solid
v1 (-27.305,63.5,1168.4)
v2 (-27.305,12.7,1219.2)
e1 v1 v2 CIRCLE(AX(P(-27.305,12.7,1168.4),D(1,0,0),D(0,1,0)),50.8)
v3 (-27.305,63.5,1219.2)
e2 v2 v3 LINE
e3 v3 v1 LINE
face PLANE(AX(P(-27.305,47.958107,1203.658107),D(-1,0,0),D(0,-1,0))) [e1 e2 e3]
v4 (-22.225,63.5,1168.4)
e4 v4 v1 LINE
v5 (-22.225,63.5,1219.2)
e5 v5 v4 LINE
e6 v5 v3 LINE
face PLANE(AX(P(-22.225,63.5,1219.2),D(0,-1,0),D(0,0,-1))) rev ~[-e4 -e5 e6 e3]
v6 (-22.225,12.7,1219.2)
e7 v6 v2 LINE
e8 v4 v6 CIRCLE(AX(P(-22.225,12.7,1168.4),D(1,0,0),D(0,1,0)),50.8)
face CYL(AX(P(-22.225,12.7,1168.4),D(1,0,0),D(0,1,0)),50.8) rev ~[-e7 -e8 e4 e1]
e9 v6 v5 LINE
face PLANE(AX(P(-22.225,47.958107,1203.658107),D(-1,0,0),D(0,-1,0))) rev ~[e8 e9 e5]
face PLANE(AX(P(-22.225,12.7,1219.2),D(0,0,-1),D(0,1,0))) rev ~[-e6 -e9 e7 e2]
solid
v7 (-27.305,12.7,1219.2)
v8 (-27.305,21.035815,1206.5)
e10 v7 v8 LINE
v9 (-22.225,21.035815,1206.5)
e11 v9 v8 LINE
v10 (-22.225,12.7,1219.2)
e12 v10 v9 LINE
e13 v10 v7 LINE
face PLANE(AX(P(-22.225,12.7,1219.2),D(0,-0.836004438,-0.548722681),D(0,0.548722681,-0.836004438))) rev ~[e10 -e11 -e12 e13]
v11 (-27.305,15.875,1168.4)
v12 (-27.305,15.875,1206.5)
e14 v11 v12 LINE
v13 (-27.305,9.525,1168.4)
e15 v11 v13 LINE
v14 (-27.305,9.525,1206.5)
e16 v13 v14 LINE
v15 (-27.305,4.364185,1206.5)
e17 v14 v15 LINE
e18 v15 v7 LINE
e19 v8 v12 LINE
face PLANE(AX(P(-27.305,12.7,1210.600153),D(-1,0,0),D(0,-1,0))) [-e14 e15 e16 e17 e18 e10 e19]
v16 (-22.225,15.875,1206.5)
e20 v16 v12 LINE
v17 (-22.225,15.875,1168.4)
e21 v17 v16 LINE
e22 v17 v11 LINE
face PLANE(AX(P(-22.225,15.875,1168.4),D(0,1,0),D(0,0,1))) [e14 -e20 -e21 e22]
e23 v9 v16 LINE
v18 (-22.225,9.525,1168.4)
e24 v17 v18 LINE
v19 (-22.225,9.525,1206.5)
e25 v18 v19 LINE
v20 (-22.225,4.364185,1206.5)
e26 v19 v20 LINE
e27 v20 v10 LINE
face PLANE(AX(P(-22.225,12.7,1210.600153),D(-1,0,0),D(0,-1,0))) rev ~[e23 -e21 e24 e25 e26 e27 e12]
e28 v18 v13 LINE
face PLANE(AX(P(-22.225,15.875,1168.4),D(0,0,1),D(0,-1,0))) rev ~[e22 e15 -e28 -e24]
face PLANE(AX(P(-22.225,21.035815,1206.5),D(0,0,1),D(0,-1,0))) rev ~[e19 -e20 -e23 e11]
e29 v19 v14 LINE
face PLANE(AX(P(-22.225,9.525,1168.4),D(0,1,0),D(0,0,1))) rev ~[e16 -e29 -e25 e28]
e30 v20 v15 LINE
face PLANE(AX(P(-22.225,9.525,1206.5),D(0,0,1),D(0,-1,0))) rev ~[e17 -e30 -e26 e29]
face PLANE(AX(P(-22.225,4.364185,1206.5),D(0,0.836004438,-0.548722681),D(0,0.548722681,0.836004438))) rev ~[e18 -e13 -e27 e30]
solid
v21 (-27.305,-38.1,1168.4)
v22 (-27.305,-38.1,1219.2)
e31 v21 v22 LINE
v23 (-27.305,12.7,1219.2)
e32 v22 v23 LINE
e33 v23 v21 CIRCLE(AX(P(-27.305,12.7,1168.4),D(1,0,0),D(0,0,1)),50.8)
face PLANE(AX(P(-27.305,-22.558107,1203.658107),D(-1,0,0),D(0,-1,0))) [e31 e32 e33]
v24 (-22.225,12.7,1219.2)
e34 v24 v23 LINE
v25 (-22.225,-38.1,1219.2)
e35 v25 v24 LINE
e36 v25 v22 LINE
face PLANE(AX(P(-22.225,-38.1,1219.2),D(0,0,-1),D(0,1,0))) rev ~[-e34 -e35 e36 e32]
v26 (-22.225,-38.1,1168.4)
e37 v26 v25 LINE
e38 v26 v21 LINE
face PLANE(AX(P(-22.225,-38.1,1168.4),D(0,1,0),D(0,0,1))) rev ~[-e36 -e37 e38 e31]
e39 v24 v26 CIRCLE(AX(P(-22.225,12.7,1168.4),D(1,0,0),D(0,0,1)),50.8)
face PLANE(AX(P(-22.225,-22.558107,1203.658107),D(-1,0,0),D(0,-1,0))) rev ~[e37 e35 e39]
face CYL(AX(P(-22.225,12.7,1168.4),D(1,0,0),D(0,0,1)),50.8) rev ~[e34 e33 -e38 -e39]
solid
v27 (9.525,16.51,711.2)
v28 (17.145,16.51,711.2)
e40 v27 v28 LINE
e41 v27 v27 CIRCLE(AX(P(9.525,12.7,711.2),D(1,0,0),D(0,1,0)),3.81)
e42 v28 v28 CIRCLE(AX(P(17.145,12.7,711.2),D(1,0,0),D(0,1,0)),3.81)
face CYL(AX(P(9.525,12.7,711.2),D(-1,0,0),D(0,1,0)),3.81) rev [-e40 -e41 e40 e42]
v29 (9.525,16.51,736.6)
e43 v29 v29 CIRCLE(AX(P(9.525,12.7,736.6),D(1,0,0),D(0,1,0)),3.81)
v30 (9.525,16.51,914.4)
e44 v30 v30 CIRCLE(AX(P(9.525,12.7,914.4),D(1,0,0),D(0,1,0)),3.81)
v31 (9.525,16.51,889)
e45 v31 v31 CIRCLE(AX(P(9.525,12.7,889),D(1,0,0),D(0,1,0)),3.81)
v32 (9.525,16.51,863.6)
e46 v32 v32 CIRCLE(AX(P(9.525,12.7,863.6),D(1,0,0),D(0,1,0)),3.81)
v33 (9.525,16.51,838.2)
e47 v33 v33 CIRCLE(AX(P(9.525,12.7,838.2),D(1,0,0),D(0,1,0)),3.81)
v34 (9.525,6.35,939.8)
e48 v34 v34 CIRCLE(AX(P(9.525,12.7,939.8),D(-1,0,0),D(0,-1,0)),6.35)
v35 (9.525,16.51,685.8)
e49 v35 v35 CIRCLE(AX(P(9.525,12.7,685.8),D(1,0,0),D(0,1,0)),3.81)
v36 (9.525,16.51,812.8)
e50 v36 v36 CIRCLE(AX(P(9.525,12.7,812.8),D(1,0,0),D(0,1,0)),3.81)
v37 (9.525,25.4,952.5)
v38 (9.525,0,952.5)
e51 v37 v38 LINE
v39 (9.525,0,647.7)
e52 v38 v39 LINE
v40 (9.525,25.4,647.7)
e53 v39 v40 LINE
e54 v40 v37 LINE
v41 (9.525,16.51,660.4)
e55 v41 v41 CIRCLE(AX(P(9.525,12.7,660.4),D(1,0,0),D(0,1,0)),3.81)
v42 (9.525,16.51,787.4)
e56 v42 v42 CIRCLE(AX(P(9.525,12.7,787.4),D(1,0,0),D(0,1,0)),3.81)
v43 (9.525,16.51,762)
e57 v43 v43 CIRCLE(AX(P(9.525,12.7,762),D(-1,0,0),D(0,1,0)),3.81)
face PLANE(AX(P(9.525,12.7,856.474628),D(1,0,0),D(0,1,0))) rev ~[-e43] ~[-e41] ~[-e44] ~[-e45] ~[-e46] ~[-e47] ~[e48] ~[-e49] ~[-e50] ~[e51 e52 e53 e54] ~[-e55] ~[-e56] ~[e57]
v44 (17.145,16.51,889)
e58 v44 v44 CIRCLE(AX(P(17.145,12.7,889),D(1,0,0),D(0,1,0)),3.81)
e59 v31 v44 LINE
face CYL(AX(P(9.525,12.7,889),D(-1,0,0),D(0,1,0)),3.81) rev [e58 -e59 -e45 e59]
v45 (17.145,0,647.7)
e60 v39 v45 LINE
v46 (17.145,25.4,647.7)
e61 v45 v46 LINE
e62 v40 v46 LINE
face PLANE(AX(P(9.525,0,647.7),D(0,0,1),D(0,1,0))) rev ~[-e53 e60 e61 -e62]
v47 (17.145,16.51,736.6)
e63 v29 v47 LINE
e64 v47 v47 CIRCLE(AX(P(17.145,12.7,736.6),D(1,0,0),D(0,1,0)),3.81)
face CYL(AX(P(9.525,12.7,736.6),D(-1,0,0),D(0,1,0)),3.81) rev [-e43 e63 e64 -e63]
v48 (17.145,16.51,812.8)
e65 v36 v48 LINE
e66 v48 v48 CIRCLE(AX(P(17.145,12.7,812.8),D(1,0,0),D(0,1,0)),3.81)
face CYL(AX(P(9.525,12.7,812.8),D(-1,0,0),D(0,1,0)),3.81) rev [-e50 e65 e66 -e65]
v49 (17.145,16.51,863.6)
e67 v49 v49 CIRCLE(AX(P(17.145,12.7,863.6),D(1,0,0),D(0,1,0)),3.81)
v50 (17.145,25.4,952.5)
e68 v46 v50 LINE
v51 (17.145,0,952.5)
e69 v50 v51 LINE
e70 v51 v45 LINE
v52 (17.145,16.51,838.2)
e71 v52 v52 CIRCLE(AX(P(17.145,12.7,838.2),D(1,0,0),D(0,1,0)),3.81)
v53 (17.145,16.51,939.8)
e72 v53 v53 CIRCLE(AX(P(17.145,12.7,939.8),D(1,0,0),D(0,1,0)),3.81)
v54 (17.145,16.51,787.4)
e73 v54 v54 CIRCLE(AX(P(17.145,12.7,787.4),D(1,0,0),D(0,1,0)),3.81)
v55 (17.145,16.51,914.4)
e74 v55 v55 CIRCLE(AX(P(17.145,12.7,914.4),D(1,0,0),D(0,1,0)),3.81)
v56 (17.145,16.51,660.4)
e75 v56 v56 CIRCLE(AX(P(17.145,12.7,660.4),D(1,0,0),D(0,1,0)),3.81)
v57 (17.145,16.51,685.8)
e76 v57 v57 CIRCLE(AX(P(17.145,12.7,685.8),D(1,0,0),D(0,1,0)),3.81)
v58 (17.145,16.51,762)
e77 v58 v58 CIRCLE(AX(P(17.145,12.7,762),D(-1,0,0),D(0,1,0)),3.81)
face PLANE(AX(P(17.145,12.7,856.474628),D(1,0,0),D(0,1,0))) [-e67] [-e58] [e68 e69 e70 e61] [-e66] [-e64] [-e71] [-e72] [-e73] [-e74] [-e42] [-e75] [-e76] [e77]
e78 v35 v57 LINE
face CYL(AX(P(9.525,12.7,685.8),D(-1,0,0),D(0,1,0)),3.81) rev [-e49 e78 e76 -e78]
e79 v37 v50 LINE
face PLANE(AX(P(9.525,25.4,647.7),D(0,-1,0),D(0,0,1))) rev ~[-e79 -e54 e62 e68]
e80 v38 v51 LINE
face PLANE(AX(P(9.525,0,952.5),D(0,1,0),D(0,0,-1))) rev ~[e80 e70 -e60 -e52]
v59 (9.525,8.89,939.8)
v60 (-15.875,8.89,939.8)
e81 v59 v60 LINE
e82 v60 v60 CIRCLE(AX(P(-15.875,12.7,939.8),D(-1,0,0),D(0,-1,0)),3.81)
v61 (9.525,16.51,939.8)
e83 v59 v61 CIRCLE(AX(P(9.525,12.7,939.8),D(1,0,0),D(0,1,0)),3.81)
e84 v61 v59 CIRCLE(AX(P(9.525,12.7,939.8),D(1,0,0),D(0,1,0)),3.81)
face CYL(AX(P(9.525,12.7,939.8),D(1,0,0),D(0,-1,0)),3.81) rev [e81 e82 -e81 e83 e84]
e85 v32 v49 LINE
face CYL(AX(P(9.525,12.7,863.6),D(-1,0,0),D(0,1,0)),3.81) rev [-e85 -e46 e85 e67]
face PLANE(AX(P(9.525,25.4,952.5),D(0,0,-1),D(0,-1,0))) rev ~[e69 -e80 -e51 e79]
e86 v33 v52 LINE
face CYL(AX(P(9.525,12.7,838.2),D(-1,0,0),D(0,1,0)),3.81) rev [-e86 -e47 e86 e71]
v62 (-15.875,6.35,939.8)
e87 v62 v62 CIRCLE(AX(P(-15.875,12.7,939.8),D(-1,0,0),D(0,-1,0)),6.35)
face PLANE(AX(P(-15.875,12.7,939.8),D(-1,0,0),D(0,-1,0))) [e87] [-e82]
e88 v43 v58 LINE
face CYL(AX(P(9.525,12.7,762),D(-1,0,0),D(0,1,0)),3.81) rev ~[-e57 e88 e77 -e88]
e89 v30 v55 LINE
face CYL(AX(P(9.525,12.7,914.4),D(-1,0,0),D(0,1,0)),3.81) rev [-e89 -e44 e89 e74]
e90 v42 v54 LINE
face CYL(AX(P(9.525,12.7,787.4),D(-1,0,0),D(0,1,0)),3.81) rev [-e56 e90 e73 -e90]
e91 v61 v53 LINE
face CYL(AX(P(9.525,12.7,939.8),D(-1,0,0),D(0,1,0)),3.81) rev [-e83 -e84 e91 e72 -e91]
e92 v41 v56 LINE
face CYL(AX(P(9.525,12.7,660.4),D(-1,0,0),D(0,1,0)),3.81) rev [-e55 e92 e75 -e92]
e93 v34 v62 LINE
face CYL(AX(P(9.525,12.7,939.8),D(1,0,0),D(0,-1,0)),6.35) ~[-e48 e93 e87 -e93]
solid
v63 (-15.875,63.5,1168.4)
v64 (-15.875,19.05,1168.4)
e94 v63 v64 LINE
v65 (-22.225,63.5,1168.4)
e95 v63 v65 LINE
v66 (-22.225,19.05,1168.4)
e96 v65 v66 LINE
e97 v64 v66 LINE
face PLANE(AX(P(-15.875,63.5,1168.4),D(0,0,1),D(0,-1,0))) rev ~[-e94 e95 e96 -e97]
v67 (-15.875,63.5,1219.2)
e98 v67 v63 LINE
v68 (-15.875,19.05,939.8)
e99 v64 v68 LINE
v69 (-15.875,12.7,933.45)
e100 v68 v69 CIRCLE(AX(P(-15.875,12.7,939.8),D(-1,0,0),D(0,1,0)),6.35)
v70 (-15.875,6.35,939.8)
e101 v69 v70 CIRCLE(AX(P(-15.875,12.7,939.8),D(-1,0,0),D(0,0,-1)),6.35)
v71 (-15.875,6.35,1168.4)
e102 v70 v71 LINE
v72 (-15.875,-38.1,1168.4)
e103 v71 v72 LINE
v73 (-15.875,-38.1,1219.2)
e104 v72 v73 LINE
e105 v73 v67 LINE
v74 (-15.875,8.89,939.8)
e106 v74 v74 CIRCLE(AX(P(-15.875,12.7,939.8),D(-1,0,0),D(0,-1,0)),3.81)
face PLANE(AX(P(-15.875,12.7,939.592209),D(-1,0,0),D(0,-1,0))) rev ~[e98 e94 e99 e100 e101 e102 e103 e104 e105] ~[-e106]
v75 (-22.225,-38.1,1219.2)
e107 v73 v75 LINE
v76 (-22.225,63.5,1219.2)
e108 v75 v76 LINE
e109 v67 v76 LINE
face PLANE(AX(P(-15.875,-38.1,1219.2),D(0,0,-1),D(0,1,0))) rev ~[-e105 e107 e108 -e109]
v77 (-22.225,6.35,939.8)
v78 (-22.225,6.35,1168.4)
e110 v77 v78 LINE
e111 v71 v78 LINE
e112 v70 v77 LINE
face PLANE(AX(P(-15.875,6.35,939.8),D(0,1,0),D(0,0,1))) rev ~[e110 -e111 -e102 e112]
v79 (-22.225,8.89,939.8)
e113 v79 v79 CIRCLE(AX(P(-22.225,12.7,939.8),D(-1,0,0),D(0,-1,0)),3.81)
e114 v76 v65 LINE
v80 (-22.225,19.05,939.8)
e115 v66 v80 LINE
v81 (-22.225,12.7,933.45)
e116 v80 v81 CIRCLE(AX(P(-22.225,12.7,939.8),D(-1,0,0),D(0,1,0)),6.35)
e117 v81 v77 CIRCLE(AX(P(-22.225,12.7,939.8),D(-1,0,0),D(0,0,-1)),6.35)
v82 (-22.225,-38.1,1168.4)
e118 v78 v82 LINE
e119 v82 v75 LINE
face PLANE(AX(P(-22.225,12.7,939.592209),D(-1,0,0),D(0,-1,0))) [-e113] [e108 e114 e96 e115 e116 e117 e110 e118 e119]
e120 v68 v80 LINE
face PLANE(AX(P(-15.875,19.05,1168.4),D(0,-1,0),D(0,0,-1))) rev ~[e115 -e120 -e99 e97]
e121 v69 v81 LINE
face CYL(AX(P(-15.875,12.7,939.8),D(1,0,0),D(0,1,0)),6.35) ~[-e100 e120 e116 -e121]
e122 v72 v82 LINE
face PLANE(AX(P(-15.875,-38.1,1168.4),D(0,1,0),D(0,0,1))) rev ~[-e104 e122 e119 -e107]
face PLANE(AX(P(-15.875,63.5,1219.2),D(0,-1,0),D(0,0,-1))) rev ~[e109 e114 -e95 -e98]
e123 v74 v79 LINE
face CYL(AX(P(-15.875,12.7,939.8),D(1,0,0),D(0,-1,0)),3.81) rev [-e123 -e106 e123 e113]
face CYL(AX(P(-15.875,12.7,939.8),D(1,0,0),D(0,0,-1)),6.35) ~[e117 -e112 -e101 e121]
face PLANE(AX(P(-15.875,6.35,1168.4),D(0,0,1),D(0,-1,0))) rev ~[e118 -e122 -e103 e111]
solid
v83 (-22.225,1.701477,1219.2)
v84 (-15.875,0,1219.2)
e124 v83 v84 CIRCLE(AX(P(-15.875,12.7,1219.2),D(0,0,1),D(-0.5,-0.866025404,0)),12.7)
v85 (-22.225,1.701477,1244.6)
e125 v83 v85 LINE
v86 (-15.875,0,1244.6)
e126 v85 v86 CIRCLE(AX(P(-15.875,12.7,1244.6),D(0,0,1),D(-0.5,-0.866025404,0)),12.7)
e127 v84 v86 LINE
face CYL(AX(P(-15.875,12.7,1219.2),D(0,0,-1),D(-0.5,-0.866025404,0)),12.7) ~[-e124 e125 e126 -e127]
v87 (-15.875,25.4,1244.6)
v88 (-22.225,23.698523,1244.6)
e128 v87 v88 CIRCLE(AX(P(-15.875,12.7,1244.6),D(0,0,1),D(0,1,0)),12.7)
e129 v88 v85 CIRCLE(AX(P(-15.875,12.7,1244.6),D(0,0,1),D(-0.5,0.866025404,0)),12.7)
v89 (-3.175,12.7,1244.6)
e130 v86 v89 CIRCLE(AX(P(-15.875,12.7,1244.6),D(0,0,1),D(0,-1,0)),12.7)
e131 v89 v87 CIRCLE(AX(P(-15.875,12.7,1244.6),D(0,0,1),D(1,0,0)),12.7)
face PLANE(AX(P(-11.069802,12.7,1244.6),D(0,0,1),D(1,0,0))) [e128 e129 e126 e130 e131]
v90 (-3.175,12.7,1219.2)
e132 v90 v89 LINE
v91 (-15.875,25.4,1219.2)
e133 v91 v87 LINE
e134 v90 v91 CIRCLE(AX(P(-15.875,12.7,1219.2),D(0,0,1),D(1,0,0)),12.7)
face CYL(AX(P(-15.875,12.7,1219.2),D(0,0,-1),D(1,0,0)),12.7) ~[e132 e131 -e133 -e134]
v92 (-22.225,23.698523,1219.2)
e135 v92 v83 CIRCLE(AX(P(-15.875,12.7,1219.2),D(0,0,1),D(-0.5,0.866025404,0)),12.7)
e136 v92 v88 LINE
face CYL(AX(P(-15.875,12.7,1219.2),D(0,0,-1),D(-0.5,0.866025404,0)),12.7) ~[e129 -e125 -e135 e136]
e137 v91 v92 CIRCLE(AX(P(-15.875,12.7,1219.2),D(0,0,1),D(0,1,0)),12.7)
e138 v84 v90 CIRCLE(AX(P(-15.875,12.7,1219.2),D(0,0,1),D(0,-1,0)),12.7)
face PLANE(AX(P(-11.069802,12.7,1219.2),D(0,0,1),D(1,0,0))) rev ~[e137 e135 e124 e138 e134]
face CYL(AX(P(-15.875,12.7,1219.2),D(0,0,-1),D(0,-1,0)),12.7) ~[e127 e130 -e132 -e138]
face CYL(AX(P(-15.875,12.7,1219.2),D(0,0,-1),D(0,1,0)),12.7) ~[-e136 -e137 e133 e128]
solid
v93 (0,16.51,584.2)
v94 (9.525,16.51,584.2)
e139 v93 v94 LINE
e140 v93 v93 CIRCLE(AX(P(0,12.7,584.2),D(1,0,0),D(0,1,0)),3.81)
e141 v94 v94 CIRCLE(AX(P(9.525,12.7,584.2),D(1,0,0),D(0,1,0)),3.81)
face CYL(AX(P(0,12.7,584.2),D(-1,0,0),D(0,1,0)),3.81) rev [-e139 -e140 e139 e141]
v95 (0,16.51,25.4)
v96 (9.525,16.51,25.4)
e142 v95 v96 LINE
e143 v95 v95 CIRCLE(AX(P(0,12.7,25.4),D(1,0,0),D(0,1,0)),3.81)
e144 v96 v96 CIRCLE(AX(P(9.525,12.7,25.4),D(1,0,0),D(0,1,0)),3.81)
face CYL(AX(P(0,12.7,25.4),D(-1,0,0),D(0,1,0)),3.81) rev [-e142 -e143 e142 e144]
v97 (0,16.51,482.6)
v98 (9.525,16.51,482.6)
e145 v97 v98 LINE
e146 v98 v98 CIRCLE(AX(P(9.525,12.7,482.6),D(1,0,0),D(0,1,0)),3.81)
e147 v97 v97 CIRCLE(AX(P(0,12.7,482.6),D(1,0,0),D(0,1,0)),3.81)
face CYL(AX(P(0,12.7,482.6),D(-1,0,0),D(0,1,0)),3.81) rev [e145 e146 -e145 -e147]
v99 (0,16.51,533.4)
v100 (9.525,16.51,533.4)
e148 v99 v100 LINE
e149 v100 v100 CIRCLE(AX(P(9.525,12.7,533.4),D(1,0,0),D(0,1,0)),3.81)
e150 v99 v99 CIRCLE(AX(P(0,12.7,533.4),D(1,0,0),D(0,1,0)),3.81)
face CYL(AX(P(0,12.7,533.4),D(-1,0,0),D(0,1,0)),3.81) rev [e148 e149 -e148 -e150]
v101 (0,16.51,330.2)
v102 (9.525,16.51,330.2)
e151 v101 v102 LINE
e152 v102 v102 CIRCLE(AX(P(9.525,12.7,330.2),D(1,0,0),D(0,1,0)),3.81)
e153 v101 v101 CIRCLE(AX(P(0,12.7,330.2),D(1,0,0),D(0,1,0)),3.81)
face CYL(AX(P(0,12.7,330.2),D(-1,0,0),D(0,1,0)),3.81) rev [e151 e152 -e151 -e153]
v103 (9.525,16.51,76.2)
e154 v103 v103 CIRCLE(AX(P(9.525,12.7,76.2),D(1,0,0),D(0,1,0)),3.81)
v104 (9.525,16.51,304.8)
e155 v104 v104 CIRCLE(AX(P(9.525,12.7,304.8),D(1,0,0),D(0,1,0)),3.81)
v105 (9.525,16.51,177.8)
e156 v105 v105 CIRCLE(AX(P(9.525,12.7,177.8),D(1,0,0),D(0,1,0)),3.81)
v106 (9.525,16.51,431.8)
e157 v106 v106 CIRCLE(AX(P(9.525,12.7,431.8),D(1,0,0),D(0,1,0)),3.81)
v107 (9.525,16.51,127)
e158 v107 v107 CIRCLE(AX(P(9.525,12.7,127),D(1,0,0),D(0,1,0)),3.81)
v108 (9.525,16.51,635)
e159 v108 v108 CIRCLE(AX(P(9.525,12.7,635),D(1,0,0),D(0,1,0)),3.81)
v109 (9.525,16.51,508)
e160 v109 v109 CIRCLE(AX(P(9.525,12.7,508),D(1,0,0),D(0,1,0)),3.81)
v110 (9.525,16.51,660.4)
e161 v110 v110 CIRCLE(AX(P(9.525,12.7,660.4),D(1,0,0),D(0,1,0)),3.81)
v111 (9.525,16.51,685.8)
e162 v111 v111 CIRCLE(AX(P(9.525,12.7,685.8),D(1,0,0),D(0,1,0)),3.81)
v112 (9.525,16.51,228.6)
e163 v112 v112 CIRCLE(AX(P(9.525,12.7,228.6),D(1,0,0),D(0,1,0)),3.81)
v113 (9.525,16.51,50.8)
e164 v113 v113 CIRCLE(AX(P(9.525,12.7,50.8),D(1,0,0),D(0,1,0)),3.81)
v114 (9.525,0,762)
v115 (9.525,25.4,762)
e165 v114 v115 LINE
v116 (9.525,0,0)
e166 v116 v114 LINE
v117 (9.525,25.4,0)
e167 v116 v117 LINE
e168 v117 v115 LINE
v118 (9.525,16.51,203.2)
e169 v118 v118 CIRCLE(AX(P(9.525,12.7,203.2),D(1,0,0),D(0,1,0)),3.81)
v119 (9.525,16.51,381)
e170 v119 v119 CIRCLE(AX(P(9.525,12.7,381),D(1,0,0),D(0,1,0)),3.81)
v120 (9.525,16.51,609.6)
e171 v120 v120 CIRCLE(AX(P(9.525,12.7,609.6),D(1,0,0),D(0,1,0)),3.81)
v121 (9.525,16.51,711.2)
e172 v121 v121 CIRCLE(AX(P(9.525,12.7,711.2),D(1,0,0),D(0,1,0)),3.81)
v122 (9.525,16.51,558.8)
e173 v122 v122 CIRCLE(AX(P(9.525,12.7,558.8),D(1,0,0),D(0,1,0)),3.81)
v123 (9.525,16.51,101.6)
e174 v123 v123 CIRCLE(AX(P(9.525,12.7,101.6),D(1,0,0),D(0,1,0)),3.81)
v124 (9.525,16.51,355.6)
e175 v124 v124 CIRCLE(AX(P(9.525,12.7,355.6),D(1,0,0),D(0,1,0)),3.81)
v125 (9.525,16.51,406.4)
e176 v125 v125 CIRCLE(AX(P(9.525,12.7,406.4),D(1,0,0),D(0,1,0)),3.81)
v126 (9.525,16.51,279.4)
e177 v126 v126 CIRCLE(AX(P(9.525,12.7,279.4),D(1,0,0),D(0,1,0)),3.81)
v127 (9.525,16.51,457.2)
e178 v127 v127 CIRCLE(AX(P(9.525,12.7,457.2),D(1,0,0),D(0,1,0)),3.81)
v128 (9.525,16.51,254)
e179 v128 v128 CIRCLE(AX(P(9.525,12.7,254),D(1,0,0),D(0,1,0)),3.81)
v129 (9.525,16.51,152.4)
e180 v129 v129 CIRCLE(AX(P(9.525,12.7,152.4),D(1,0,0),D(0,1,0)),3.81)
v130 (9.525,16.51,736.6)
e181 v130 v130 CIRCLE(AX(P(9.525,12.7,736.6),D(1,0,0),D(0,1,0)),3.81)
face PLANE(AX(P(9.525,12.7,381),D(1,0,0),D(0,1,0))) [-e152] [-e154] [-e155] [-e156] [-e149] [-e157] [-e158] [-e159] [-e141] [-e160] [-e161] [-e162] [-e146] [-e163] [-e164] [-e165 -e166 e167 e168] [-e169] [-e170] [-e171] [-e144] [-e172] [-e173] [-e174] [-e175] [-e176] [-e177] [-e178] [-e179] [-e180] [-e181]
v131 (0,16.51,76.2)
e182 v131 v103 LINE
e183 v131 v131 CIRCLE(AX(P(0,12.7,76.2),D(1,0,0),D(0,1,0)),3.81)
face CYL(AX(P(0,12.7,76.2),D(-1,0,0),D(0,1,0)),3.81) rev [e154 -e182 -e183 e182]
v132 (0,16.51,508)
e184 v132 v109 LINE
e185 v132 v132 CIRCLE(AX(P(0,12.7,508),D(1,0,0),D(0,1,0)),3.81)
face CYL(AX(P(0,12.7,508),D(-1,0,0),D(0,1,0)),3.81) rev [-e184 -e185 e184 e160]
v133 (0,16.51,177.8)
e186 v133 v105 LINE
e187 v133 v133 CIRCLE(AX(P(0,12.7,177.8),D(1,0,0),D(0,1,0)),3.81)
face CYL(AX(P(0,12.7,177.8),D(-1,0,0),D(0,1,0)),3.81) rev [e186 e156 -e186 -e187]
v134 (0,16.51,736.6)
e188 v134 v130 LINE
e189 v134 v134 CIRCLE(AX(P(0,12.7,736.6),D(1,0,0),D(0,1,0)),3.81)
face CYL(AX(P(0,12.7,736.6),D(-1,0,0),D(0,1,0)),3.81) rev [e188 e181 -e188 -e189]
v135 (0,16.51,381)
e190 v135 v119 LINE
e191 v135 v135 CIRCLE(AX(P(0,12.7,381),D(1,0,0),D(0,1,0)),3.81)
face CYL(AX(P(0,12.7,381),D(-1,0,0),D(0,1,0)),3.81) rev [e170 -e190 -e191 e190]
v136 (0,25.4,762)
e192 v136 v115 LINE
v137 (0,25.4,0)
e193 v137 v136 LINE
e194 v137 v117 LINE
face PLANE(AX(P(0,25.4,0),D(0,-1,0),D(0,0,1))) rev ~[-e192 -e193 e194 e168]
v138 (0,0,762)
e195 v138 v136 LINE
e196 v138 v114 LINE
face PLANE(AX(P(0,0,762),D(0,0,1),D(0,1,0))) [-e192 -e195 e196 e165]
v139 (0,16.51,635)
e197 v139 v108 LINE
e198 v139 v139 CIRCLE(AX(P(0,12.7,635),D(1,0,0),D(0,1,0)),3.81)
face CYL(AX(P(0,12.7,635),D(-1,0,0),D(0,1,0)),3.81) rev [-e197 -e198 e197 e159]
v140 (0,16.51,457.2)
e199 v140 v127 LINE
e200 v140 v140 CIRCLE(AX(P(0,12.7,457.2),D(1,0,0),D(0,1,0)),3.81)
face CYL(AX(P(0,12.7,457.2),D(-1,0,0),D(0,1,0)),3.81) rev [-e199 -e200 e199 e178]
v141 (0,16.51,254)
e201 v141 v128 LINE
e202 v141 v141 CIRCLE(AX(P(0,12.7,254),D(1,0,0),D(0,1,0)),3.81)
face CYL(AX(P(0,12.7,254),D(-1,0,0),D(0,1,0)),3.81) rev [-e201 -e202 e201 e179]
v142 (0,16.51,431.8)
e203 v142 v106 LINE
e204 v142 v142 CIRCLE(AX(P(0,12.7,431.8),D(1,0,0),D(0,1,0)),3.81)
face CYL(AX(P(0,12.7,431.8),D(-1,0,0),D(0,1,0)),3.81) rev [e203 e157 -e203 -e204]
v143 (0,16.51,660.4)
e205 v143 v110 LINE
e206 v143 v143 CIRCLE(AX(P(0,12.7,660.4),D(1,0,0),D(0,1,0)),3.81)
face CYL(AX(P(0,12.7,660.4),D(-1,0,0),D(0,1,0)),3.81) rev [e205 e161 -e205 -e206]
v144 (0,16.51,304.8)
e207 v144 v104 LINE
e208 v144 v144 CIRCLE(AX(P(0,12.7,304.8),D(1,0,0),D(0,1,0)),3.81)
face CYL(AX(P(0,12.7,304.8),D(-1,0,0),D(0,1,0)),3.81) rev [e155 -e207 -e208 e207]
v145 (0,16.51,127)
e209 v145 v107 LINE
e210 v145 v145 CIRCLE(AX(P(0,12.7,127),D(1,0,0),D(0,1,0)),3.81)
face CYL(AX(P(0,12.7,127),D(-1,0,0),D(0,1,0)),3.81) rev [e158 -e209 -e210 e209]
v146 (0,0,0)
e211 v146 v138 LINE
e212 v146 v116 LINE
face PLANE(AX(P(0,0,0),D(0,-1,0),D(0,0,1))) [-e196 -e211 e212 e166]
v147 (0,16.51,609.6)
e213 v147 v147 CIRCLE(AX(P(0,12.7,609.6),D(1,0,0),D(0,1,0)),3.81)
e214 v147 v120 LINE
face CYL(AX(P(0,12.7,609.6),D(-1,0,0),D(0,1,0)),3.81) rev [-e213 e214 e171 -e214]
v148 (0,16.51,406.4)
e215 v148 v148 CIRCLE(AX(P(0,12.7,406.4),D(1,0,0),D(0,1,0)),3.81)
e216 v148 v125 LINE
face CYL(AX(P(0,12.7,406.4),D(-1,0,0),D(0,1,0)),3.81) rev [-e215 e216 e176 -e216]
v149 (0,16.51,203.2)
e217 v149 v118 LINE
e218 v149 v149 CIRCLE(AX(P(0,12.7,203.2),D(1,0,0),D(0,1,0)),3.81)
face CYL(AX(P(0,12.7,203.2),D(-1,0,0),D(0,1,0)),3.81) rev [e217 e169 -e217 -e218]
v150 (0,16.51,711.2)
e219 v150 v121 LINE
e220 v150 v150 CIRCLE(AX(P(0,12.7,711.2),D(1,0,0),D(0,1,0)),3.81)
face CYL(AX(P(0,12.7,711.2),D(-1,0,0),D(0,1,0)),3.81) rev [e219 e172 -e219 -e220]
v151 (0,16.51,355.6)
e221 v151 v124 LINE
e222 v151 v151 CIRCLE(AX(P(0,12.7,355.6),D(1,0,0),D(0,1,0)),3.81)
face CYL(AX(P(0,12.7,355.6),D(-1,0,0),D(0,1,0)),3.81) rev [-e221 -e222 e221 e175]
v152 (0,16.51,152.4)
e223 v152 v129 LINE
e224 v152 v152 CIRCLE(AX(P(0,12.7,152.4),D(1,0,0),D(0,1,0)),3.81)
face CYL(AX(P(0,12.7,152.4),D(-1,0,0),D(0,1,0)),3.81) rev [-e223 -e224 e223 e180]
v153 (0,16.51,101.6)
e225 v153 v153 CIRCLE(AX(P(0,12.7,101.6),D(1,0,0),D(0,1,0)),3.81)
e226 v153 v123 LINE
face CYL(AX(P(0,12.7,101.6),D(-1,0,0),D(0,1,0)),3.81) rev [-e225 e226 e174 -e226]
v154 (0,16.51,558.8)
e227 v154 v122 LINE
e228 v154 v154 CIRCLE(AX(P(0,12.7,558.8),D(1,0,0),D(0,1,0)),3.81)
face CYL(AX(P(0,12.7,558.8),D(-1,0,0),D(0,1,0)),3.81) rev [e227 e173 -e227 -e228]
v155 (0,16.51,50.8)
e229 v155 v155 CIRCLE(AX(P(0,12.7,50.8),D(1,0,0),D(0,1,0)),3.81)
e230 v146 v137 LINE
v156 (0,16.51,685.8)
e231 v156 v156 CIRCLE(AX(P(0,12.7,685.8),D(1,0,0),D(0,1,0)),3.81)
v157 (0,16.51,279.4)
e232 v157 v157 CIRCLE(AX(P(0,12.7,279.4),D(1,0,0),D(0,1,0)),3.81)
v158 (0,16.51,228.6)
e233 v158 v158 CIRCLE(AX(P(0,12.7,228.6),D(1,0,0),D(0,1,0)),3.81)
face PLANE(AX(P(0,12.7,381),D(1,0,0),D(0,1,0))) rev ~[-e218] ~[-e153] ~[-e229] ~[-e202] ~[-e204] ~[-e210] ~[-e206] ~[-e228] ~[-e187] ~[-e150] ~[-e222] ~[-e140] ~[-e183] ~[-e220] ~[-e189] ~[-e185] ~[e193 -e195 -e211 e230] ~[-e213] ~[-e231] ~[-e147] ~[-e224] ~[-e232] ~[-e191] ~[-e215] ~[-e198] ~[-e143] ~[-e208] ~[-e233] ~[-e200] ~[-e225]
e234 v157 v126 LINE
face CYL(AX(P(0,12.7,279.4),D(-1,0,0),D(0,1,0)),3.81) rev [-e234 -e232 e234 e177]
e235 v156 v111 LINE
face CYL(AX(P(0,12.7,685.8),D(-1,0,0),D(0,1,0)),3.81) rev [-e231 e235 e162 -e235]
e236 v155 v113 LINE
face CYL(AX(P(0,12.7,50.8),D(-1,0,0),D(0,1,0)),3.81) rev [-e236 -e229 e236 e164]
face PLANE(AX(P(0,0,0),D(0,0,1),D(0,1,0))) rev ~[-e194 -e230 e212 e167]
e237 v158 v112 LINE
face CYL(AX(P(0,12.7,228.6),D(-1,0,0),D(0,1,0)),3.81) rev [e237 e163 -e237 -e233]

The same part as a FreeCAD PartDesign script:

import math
import FreeCAD as App
import Part
import Sketcher
from FreeCAD import Vector
Q = App.Units.Quantity


def add_polygon(sketch, points):
    """Adds a closed chain of lines whose ends are joined by coincident constraints."""
    first, n = sketch.GeometryCount, len(points)
    for a, b in zip(points, points[1:] + points[:1]):
        sketch.addGeometry(Part.LineSegment(App.Vector(*a, 0), App.Vector(*b, 0)), False)
    for i in range(n):
        sketch.addConstraint(Sketcher.Constraint("Coincident", first + i, 2, first + (i + 1) % n, 1))

doc = App.newDocument("Part")
body = doc.addObject("PartDesign::Body", "Body")

sketch1 = body.newObject("Sketcher::SketchObject", "Sketch")
sketch1.AttachmentSupport = (doc.getObject("YZ_Plane"), [""])
sketch1.MapMode = "FlatFace"
add_polygon(sketch1, [(0, 762), (0, 0), (25.4, 0), (25.4, 762)])
sketch1.addGeometry(Part.Circle(Vector(12.7, 25.4, 0), Vector(0, 0, 1), 3.8), False)
sketch1.addGeometry(Part.Circle(Vector(12.7, 50.8, 0), Vector(0, 0, 1), 3.8), False)
sketch1.addGeometry(Part.Circle(Vector(12.7, 76.2, 0), Vector(0, 0, 1), 3.8), False)
sketch1.addGeometry(Part.Circle(Vector(12.7, 101.6, 0), Vector(0, 0, 1), 3.8), False)
sketch1.addGeometry(Part.Circle(Vector(12.7, 127, 0), Vector(0, 0, 1), 3.8), False)
sketch1.addGeometry(Part.Circle(Vector(12.7, 152.4, 0), Vector(0, 0, 1), 3.8), False)
sketch1.addGeometry(Part.Circle(Vector(12.7, 177.8, 0), Vector(0, 0, 1), 3.8), False)
sketch1.addGeometry(Part.Circle(Vector(12.7, 203.2, 0), Vector(0, 0, 1), 3.8), False)
sketch1.addGeometry(Part.Circle(Vector(12.7, 228.6, 0), Vector(0, 0, 1), 3.8), False)
sketch1.addGeometry(Part.Circle(Vector(12.7, 254, 0), Vector(0, 0, 1), 3.8), False)
sketch1.addGeometry(Part.Circle(Vector(12.7, 279.4, 0), Vector(0, 0, 1), 3.8), False)
sketch1.addGeometry(Part.Circle(Vector(12.7, 304.8, 0), Vector(0, 0, 1), 3.8), False)
sketch1.addGeometry(Part.Circle(Vector(12.7, 330.2, 0), Vector(0, 0, 1), 3.8), False)
sketch1.addGeometry(Part.Circle(Vector(12.7, 355.6, 0), Vector(0, 0, 1), 3.8), False)
sketch1.addGeometry(Part.Circle(Vector(12.7, 381, 0), Vector(0, 0, 1), 3.8), False)
sketch1.addGeometry(Part.Circle(Vector(12.7, 406.4, 0), Vector(0, 0, 1), 3.8), False)
sketch1.addGeometry(Part.Circle(Vector(12.7, 431.8, 0), Vector(0, 0, 1), 3.8), False)
sketch1.addGeometry(Part.Circle(Vector(12.7, 457.2, 0), Vector(0, 0, 1), 3.8), False)
sketch1.addGeometry(Part.Circle(Vector(12.7, 482.6, 0), Vector(0, 0, 1), 3.8), False)
sketch1.addGeometry(Part.Circle(Vector(12.7, 508, 0), Vector(0, 0, 1), 3.8), False)
sketch1.addGeometry(Part.Circle(Vector(12.7, 533.4, 0), Vector(0, 0, 1), 3.8), False)
sketch1.addGeometry(Part.Circle(Vector(12.7, 558.8, 0), Vector(0, 0, 1), 3.8), False)
sketch1.addGeometry(Part.Circle(Vector(12.7, 584.2, 0), Vector(0, 0, 1), 3.8), False)
sketch1.addGeometry(Part.Circle(Vector(12.7, 609.6, 0), Vector(0, 0, 1), 3.8), False)
sketch1.addGeometry(Part.Circle(Vector(12.7, 635, 0), Vector(0, 0, 1), 3.8), False)
sketch1.addGeometry(Part.Circle(Vector(12.7, 660.4, 0), Vector(0, 0, 1), 3.8), False)
sketch1.addGeometry(Part.Circle(Vector(12.7, 685.8, 0), Vector(0, 0, 1), 3.8), False)
sketch1.addGeometry(Part.Circle(Vector(12.7, 711.2, 0), Vector(0, 0, 1), 3.8), False)
sketch1.addGeometry(Part.Circle(Vector(12.7, 736.6, 0), Vector(0, 0, 1), 3.8), False)
sketch1.addConstraint(Sketcher.Constraint("Vertical", 0))
sketch1.addConstraint(Sketcher.Constraint("Horizontal", 1))
sketch1.addConstraint(Sketcher.Constraint("Vertical", 2))
sketch1.addConstraint(Sketcher.Constraint("Horizontal", 3))
sketch1.addConstraint(Sketcher.Constraint("Coincident", 0, 2, -1, 1))
sketch1.addConstraint(Sketcher.Constraint("Equal", 4, 5))
sketch1.addConstraint(Sketcher.Constraint("Equal", 5, 6))
sketch1.addConstraint(Sketcher.Constraint("Equal", 6, 7))
sketch1.addConstraint(Sketcher.Constraint("Equal", 7, 8))
sketch1.addConstraint(Sketcher.Constraint("Equal", 8, 9))
sketch1.addConstraint(Sketcher.Constraint("Equal", 9, 10))
sketch1.addConstraint(Sketcher.Constraint("Equal", 10, 11))
sketch1.addConstraint(Sketcher.Constraint("Equal", 11, 12))
sketch1.addConstraint(Sketcher.Constraint("Equal", 12, 13))
sketch1.addConstraint(Sketcher.Constraint("Equal", 13, 14))
sketch1.addConstraint(Sketcher.Constraint("Equal", 14, 15))
sketch1.addConstraint(Sketcher.Constraint("Equal", 15, 16))
sketch1.addConstraint(Sketcher.Constraint("Equal", 16, 17))
sketch1.addConstraint(Sketcher.Constraint("Equal", 17, 18))
sketch1.addConstraint(Sketcher.Constraint("Equal", 18, 19))
sketch1.addConstraint(Sketcher.Constraint("Equal", 19, 20))
sketch1.addConstraint(Sketcher.Constraint("Equal", 20, 21))
sketch1.addConstraint(Sketcher.Constraint("Equal", 21, 22))
sketch1.addConstraint(Sketcher.Constraint("Equal", 22, 23))
sketch1.addConstraint(Sketcher.Constraint("Equal", 23, 24))
sketch1.addConstraint(Sketcher.Constraint("Equal", 24, 25))
sketch1.addConstraint(Sketcher.Constraint("Equal", 25, 26))
sketch1.addConstraint(Sketcher.Constraint("Equal", 26, 27))
sketch1.addConstraint(Sketcher.Constraint("Equal", 27, 28))
sketch1.addConstraint(Sketcher.Constraint("Equal", 28, 29))
sketch1.addConstraint(Sketcher.Constraint("Equal", 29, 30))
sketch1.addConstraint(Sketcher.Constraint("Equal", 30, 31))
sketch1.addConstraint(Sketcher.Constraint("Equal", 31, 32))
sketch1.addConstraint(Sketcher.Constraint("Vertical", 4, 3, 5, 3))
sketch1.addConstraint(Sketcher.Constraint("Vertical", 5, 3, 6, 3))
sketch1.addConstraint(Sketcher.Constraint("Vertical", 6, 3, 7, 3))
sketch1.addConstraint(Sketcher.Constraint("Vertical", 7, 3, 8, 3))
sketch1.addConstraint(Sketcher.Constraint("Vertical", 8, 3, 9, 3))
sketch1.addConstraint(Sketcher.Constraint("Vertical", 9, 3, 10, 3))
sketch1.addConstraint(Sketcher.Constraint("Vertical", 10, 3, 11, 3))
sketch1.addConstraint(Sketcher.Constraint("Vertical", 11, 3, 12, 3))
sketch1.addConstraint(Sketcher.Constraint("Vertical", 12, 3, 13, 3))
sketch1.addConstraint(Sketcher.Constraint("Vertical", 13, 3, 14, 3))
sketch1.addConstraint(Sketcher.Constraint("Vertical", 14, 3, 15, 3))
sketch1.addConstraint(Sketcher.Constraint("Vertical", 15, 3, 16, 3))
sketch1.addConstraint(Sketcher.Constraint("Vertical", 16, 3, 17, 3))
sketch1.addConstraint(Sketcher.Constraint("Vertical", 17, 3, 18, 3))
sketch1.addConstraint(Sketcher.Constraint("Vertical", 18, 3, 19, 3))
sketch1.addConstraint(Sketcher.Constraint("Vertical", 19, 3, 20, 3))
sketch1.addConstraint(Sketcher.Constraint("Vertical", 20, 3, 21, 3))
sketch1.addConstraint(Sketcher.Constraint("Vertical", 21, 3, 22, 3))
sketch1.addConstraint(Sketcher.Constraint("Vertical", 22, 3, 23, 3))
sketch1.addConstraint(Sketcher.Constraint("Vertical", 23, 3, 24, 3))
sketch1.addConstraint(Sketcher.Constraint("Vertical", 24, 3, 25, 3))
sketch1.addConstraint(Sketcher.Constraint("Vertical", 25, 3, 26, 3))
sketch1.addConstraint(Sketcher.Constraint("Vertical", 26, 3, 27, 3))
sketch1.addConstraint(Sketcher.Constraint("Vertical", 27, 3, 28, 3))
sketch1.addConstraint(Sketcher.Constraint("Vertical", 28, 3, 29, 3))
sketch1.addConstraint(Sketcher.Constraint("Vertical", 29, 3, 30, 3))
sketch1.addConstraint(Sketcher.Constraint("Vertical", 30, 3, 31, 3))
sketch1.addConstraint(Sketcher.Constraint("Vertical", 31, 3, 32, 3))
sketch1.addConstraint(Sketcher.Constraint("Diameter", 4, Q("0.3 in")))
sketch1.addConstraint(Sketcher.Constraint("DistanceX", 1, 1, 1, 2, Q("1 in")))
sketch1.addConstraint(Sketcher.Constraint("DistanceY", 0, 2, 0, 1, Q("30 in")))
sketch1.addConstraint(Sketcher.Constraint("DistanceY", -1, 1, 4, 3, Q("1 in")))
sketch1.addConstraint(Sketcher.Constraint("DistanceY", -1, 1, 5, 3, Q("2 in")))
sketch1.addConstraint(Sketcher.Constraint("DistanceY", -1, 1, 6, 3, Q("3 in")))
sketch1.addConstraint(Sketcher.Constraint("DistanceY", -1, 1, 7, 3, Q("4 in")))
sketch1.addConstraint(Sketcher.Constraint("DistanceY", -1, 1, 8, 3, Q("5 in")))
sketch1.addConstraint(Sketcher.Constraint("DistanceY", -1, 1, 9, 3, Q("6 in")))
sketch1.addConstraint(Sketcher.Constraint("DistanceY", -1, 1, 10, 3, Q("7 in")))
sketch1.addConstraint(Sketcher.Constraint("DistanceY", -1, 1, 11, 3, Q("8 in")))
sketch1.addConstraint(Sketcher.Constraint("DistanceY", -1, 1, 12, 3, Q("9 in")))
sketch1.addConstraint(Sketcher.Constraint("DistanceY", -1, 1, 13, 3, Q("10 in")))
sketch1.addConstraint(Sketcher.Constraint("DistanceY", -1, 1, 14, 3, Q("11 in")))
sketch1.addConstraint(Sketcher.Constraint("DistanceY", -1, 1, 15, 3, Q("12 in")))
sketch1.addConstraint(Sketcher.Constraint("DistanceY", -1, 1, 16, 3, Q("13 in")))
sketch1.addConstraint(Sketcher.Constraint("DistanceY", -1, 1, 17, 3, Q("14 in")))
sketch1.addConstraint(Sketcher.Constraint("DistanceY", -1, 1, 18, 3, Q("15 in")))
sketch1.addConstraint(Sketcher.Constraint("DistanceY", -1, 1, 19, 3, Q("16 in")))
sketch1.addConstraint(Sketcher.Constraint("DistanceY", -1, 1, 20, 3, Q("17 in")))
sketch1.addConstraint(Sketcher.Constraint("DistanceY", -1, 1, 21, 3, Q("18 in")))
sketch1.addConstraint(Sketcher.Constraint("DistanceY", -1, 1, 22, 3, Q("19 in")))
sketch1.addConstraint(Sketcher.Constraint("DistanceY", -1, 1, 23, 3, Q("20 in")))
sketch1.addConstraint(Sketcher.Constraint("DistanceY", -1, 1, 24, 3, Q("21 in")))
sketch1.addConstraint(Sketcher.Constraint("DistanceY", -1, 1, 25, 3, Q("22 in")))
sketch1.addConstraint(Sketcher.Constraint("DistanceY", -1, 1, 26, 3, Q("23 in")))
sketch1.addConstraint(Sketcher.Constraint("DistanceY", -1, 1, 27, 3, Q("24 in")))
sketch1.addConstraint(Sketcher.Constraint("DistanceY", -1, 1, 28, 3, Q("25 in")))
sketch1.addConstraint(Sketcher.Constraint("DistanceY", -1, 1, 29, 3, Q("26 in")))
sketch1.addConstraint(Sketcher.Constraint("DistanceY", -1, 1, 30, 3, Q("27 in")))
sketch1.addConstraint(Sketcher.Constraint("DistanceY", -1, 1, 31, 3, Q("28 in")))
sketch1.addConstraint(Sketcher.Constraint("DistanceY", -1, 1, 32, 3, Q("29 in")))
sketch1.addConstraint(Sketcher.Constraint("DistanceX", -1, 1, 4, 3, Q("0.5 in")))
pad1 = body.newObject("PartDesign::Pad", "Pad")
pad1.Profile = sketch1
pad1.Length = Q("0.375 in")
body2 = doc.addObject("PartDesign::Body", "Body001")

sketch2 = body2.newObject("Sketcher::SketchObject", "Sketch001")
sketch2.AttachmentSupport = (doc.getObject("YZ_Plane001"), [""])
sketch2.MapMode = "FlatFace"
sketch2.AttachmentOffset = App.Placement(Vector(0, 0, 0.375 * 25.4), App.Rotation())
add_polygon(sketch2, [(25.4, 952.5), (0, 952.5), (0, 647.7), (25.4, 647.7)])
sketch2.addGeometry(Part.Circle(Vector(12.7, 660.4, 0), Vector(0, 0, 1), 3.8), False)
sketch2.addGeometry(Part.Circle(Vector(12.7, 685.8, 0), Vector(0, 0, 1), 3.8), False)
sketch2.addGeometry(Part.Circle(Vector(12.7, 711.2, 0), Vector(0, 0, 1), 3.8), False)
sketch2.addGeometry(Part.Circle(Vector(12.7, 736.6, 0), Vector(0, 0, 1), 3.8), False)
sketch2.addGeometry(Part.Circle(Vector(12.7, 762, 0), Vector(0, 0, 1), 3.8), False)
sketch2.addGeometry(Part.Circle(Vector(12.7, 787.4, 0), Vector(0, 0, 1), 3.8), False)
sketch2.addGeometry(Part.Circle(Vector(12.7, 812.8, 0), Vector(0, 0, 1), 3.8), False)
sketch2.addGeometry(Part.Circle(Vector(12.7, 838.2, 0), Vector(0, 0, 1), 3.8), False)
sketch2.addGeometry(Part.Circle(Vector(12.7, 863.6, 0), Vector(0, 0, 1), 3.8), False)
sketch2.addGeometry(Part.Circle(Vector(12.7, 889, 0), Vector(0, 0, 1), 3.8), False)
sketch2.addGeometry(Part.Circle(Vector(12.7, 914.4, 0), Vector(0, 0, 1), 3.8), False)
sketch2.addGeometry(Part.Circle(Vector(12.7, 939.8, 0), Vector(0, 0, 1), 3.8), False)
sketch2.addConstraint(Sketcher.Constraint("Horizontal", 0))
sketch2.addConstraint(Sketcher.Constraint("Vertical", 1))
sketch2.addConstraint(Sketcher.Constraint("Horizontal", 2))
sketch2.addConstraint(Sketcher.Constraint("Vertical", 3))
sketch2.addConstraint(Sketcher.Constraint("Equal", 4, 5))
sketch2.addConstraint(Sketcher.Constraint("Equal", 5, 6))
sketch2.addConstraint(Sketcher.Constraint("Equal", 6, 7))
sketch2.addConstraint(Sketcher.Constraint("Equal", 7, 8))
sketch2.addConstraint(Sketcher.Constraint("Equal", 8, 9))
sketch2.addConstraint(Sketcher.Constraint("Equal", 9, 10))
sketch2.addConstraint(Sketcher.Constraint("Equal", 10, 11))
sketch2.addConstraint(Sketcher.Constraint("Equal", 11, 12))
sketch2.addConstraint(Sketcher.Constraint("Equal", 12, 13))
sketch2.addConstraint(Sketcher.Constraint("Equal", 13, 14))
sketch2.addConstraint(Sketcher.Constraint("Equal", 14, 15))
sketch2.addConstraint(Sketcher.Constraint("PointOnObject", 0, 2, -2))
sketch2.addConstraint(Sketcher.Constraint("Vertical", 4, 3, 5, 3))
sketch2.addConstraint(Sketcher.Constraint("Vertical", 5, 3, 6, 3))
sketch2.addConstraint(Sketcher.Constraint("Vertical", 6, 3, 7, 3))
sketch2.addConstraint(Sketcher.Constraint("Vertical", 7, 3, 8, 3))
sketch2.addConstraint(Sketcher.Constraint("Vertical", 8, 3, 9, 3))
sketch2.addConstraint(Sketcher.Constraint("Vertical", 9, 3, 10, 3))
sketch2.addConstraint(Sketcher.Constraint("Vertical", 10, 3, 11, 3))
sketch2.addConstraint(Sketcher.Constraint("Vertical", 11, 3, 12, 3))
sketch2.addConstraint(Sketcher.Constraint("Vertical", 12, 3, 13, 3))
sketch2.addConstraint(Sketcher.Constraint("Vertical", 13, 3, 14, 3))
sketch2.addConstraint(Sketcher.Constraint("Vertical", 14, 3, 15, 3))
sketch2.addConstraint(Sketcher.Constraint("Diameter", 4, Q("0.3 in")))
sketch2.addConstraint(Sketcher.Constraint("DistanceX", 0, 2, 0, 1, Q("1 in")))
sketch2.addConstraint(Sketcher.Constraint("DistanceY", 1, 2, 1, 1, Q("12 in")))
sketch2.addConstraint(Sketcher.Constraint("DistanceY", -1, 1, 4, 3, Q("26 in")))
sketch2.addConstraint(Sketcher.Constraint("DistanceY", -1, 1, 5, 3, Q("27 in")))
sketch2.addConstraint(Sketcher.Constraint("DistanceY", -1, 1, 6, 3, Q("28 in")))
sketch2.addConstraint(Sketcher.Constraint("DistanceY", -1, 1, 7, 3, Q("29 in")))
sketch2.addConstraint(Sketcher.Constraint("DistanceY", -1, 1, 8, 3, Q("30 in")))
sketch2.addConstraint(Sketcher.Constraint("DistanceY", -1, 1, 9, 3, Q("31 in")))
sketch2.addConstraint(Sketcher.Constraint("DistanceY", -1, 1, 10, 3, Q("32 in")))
sketch2.addConstraint(Sketcher.Constraint("DistanceY", -1, 1, 11, 3, Q("33 in")))
sketch2.addConstraint(Sketcher.Constraint("DistanceY", -1, 1, 12, 3, Q("34 in")))
sketch2.addConstraint(Sketcher.Constraint("DistanceY", -1, 1, 13, 3, Q("35 in")))
sketch2.addConstraint(Sketcher.Constraint("DistanceY", -1, 1, 14, 3, Q("36 in")))
sketch2.addConstraint(Sketcher.Constraint("DistanceY", -1, 1, 15, 3, Q("37 in")))
sketch2.addConstraint(Sketcher.Constraint("DistanceX", -1, 1, 4, 3, Q("0.5 in")))
sketch2.addConstraint(Sketcher.Constraint("DistanceY", -1, 1, 0, 2, Q("37.5 in")))
pad2 = body2.newObject("PartDesign::Pad", "Pad001")
pad2.Profile = sketch2
pad2.Length = Q("0.3 in")

sketch3 = body2.newObject("Sketcher::SketchObject", "Sketch002")
sketch3.AttachmentSupport = (doc.getObject("YZ_Plane001"), [""])
sketch3.MapMode = "FlatFace"
sketch3.AttachmentOffset = App.Placement(Vector(0, 0, 0.375 * 25.4), App.Rotation())
sketch3.addGeometry(Part.Circle(Vector(12.7, 939.8, 0), Vector(0, 0, 1), 6.3), False)
sketch3.addGeometry(Part.Circle(Vector(12.7, 939.8, 0), Vector(0, 0, 1), 3.8), False)
sketch3.addConstraint(Sketcher.Constraint("Coincident", 1, 3, 0, 3))
sketch3.addConstraint(Sketcher.Constraint("Diameter", 0, Q("0.5 in")))
sketch3.addConstraint(Sketcher.Constraint("Diameter", 1, Q("0.3 in")))
sketch3.addConstraint(Sketcher.Constraint("DistanceY", -1, 1, 0, 3, Q("37 in")))
sketch3.addConstraint(Sketcher.Constraint("DistanceX", -1, 1, 0, 3, Q("0.5 in")))
pad3 = body2.newObject("PartDesign::Pad", "Pad002")
pad3.Profile = sketch3
pad3.Length = Q("1 in")
pad3.Reversed = True
body3 = doc.addObject("PartDesign::Body", "Body002")

sketch4 = body3.newObject("Sketcher::SketchObject", "Sketch003")
sketch4.AttachmentSupport = (doc.getObject("YZ_Plane002"), [""])
sketch4.MapMode = "FlatFace"
sketch4.AttachmentOffset = App.Placement(Vector(0, 0, -0.625 * 25.4), App.Rotation())
sketch4.addGeometry(Part.ArcOfCircle(Part.Circle(Vector(12.7, 939.8, 0), Vector(0, 0, 1), 6.3), math.radians(180), math.radians(270)), False)
sketch4.addGeometry(Part.LineSegment(Vector(6.3, 939.8, 0), Vector(6.3, 1168.4, 0)), False)
sketch4.addGeometry(Part.LineSegment(Vector(6.3, 1168.4, 0), Vector(-38.1, 1168.4, 0)), False)
sketch4.addGeometry(Part.LineSegment(Vector(-38.1, 1168.4, 0), Vector(-38.1, 1219.2, 0)), False)
sketch4.addGeometry(Part.LineSegment(Vector(-38.1, 1219.2, 0), Vector(63.5, 1219.2, 0)), False)
sketch4.addGeometry(Part.LineSegment(Vector(63.5, 1219.2, 0), Vector(63.5, 1168.4, 0)), False)
sketch4.addGeometry(Part.LineSegment(Vector(63.5, 1168.4, 0), Vector(19.1, 1168.4, 0)), False)
sketch4.addGeometry(Part.LineSegment(Vector(19.1, 1168.4, 0), Vector(19.1, 939.8, 0)), False)
sketch4.addGeometry(Part.ArcOfCircle(Part.Circle(Vector(12.7, 939.8, 0), Vector(0, 0, 1), 6.3), math.radians(-90), math.radians(0)), False)
sketch4.addGeometry(Part.Circle(Vector(12.7, 939.8, 0), Vector(0, 0, 1), 3.8), False)
sketch4.addConstraint(Sketcher.Constraint("Tangent", 0, 1, 1, 1))
sketch4.addConstraint(Sketcher.Constraint("Coincident", 1, 2, 2, 1))
sketch4.addConstraint(Sketcher.Constraint("Coincident", 2, 2, 3, 1))
sketch4.addConstraint(Sketcher.Constraint("Coincident", 3, 2, 4, 1))
sketch4.addConstraint(Sketcher.Constraint("Coincident", 4, 2, 5, 1))
sketch4.addConstraint(Sketcher.Constraint("Coincident", 5, 2, 6, 1))
sketch4.addConstraint(Sketcher.Constraint("Coincident", 6, 2, 7, 1))
sketch4.addConstraint(Sketcher.Constraint("Tangent", 7, 2, 8, 2))
sketch4.addConstraint(Sketcher.Constraint("Tangent", 8, 1, 0, 2))
sketch4.addConstraint(Sketcher.Constraint("Vertical", 1))
sketch4.addConstraint(Sketcher.Constraint("Horizontal", 2))
sketch4.addConstraint(Sketcher.Constraint("Vertical", 3))
sketch4.addConstraint(Sketcher.Constraint("Horizontal", 4))
sketch4.addConstraint(Sketcher.Constraint("Vertical", 5))
sketch4.addConstraint(Sketcher.Constraint("Horizontal", 6))
sketch4.addConstraint(Sketcher.Constraint("Vertical", 7))
sketch4.addConstraint(Sketcher.Constraint("Coincident", 9, 3, 0, 3))
sketch4.addConstraint(Sketcher.Constraint("Equal", 0, 8))
sketch4.addConstraint(Sketcher.Constraint("Horizontal", 2, 2, 5, 2))
sketch4.addConstraint(Sketcher.Constraint("Vertical", 9, 3, 8, 1))
sketch4.addConstraint(Sketcher.Constraint("Equal", 2, 6))
sketch4.addConstraint(Sketcher.Constraint("Diameter", 9, Q("0.3 in")))
sketch4.addConstraint(Sketcher.Constraint("DistanceX", 4, 1, 4, 2, Q("4 in")))
sketch4.addConstraint(Sketcher.Constraint("DistanceY", 1, 1, 1, 2, Q("9 in")))
sketch4.addConstraint(Sketcher.Constraint("DistanceY", 3, 1, 3, 2, Q("2 in")))
sketch4.addConstraint(Sketcher.Constraint("Radius", 0, Q("0.25 in")))
sketch4.addConstraint(Sketcher.Constraint("DistanceY", -1, 1, 0, 3, Q("37 in")))
sketch4.addConstraint(Sketcher.Constraint("DistanceX", -1, 1, 0, 3, Q("0.5 in")))
pad4 = body3.newObject("PartDesign::Pad", "Pad003")
pad4.Profile = sketch4
pad4.Length = Q("0.25 in")
pad4.Reversed = True
body4 = doc.addObject("PartDesign::Body", "Body003")

sketch5 = body4.newObject("Sketcher::SketchObject", "Sketch004")
sketch5.AttachmentSupport = (doc.getObject("YZ_Plane003"), [""])
sketch5.MapMode = "FlatFace"
sketch5.AttachmentOffset = App.Placement(Vector(0, 0, -0.875 * 25.4), App.Rotation())
add_polygon(sketch5, [(4, 1206), (13, 1219), (21, 1206), (16, 1206), (16, 1168), (10, 1168), (10, 1206)])
sketch5.addConstraint(Sketcher.Constraint("Horizontal", 2))
sketch5.addConstraint(Sketcher.Constraint("Vertical", 3))
sketch5.addConstraint(Sketcher.Constraint("Horizontal", 4))
sketch5.addConstraint(Sketcher.Constraint("Vertical", 5))
sketch5.addConstraint(Sketcher.Constraint("Horizontal", 6))
sketch5.addConstraint(Sketcher.Constraint("Horizontal", 2, 2, 5, 2))
sketch5.addConstraint(Sketcher.Constraint("Equal", 2, 6))
sketch5.addConstraint(Sketcher.Constraint("Equal", 0, 1))
sketch5.addConstraint(Sketcher.Constraint("DistanceY", 3, 2, 3, 1, Q("1.5 in")))
sketch5.addConstraint(Sketcher.Constraint("DistanceY", -1, 1, 0, 2, Q("48 in")))
sketch5.addConstraint(Sketcher.Constraint("DistanceY", -1, 1, 3, 2, Q("46 in")))
sketch5.addConstraint(Sketcher.Constraint("DistanceX", 4, 2, 4, 1, Q("0.25 in")))
sketch5.addConstraint(Sketcher.Constraint("DistanceX", -1, 1, 0, 2, Q("0.5 in")))
sketch5.addConstraint(Sketcher.Constraint("DistanceX", 2, 2, 2, 1, 5.160815))
pad5 = body4.newObject("PartDesign::Pad", "Pad004")
pad5.Profile = sketch5
pad5.Length = Q("0.2 in")
pad5.Reversed = True
body5 = doc.addObject("PartDesign::Body", "Body004")

sketch6 = body5.newObject("Sketcher::SketchObject", "Sketch005")
sketch6.AttachmentSupport = (doc.getObject("YZ_Plane004"), [""])
sketch6.MapMode = "FlatFace"
sketch6.AttachmentOffset = App.Placement(Vector(0, 0, -0.875 * 25.4), App.Rotation())
sketch6.addGeometry(Part.ArcOfCircle(Part.Circle(Vector(13, 1168, 0), Vector(0, 0, 1), 51), math.radians(0), math.radians(90)), False)
sketch6.addGeometry(Part.LineSegment(Vector(13, 1219, 0), Vector(64, 1219, 0)), False)
sketch6.addGeometry(Part.LineSegment(Vector(64, 1219, 0), Vector(64, 1168, 0)), False)
sketch6.addConstraint(Sketcher.Constraint("Tangent", 0, 2, 1, 1))
sketch6.addConstraint(Sketcher.Constraint("Coincident", 1, 2, 2, 1))
sketch6.addConstraint(Sketcher.Constraint("Tangent", 2, 2, 0, 1))
sketch6.addConstraint(Sketcher.Constraint("Horizontal", 1))
sketch6.addConstraint(Sketcher.Constraint("Vertical", 2))
sketch6.addConstraint(Sketcher.Constraint("Radius", 0, Q("2 in")))
sketch6.addConstraint(Sketcher.Constraint("DistanceY", -1, 1, 0, 3, Q("46 in")))
sketch6.addConstraint(Sketcher.Constraint("DistanceX", -1, 1, 0, 3, Q("0.5 in")))
pad6 = body5.newObject("PartDesign::Pad", "Pad005")
pad6.Profile = sketch6
pad6.Length = Q("0.2 in")
pad6.Reversed = True
body6 = doc.addObject("PartDesign::Body", "Body005")

sketch7 = body6.newObject("Sketcher::SketchObject", "Sketch006")
sketch7.AttachmentSupport = (doc.getObject("YZ_Plane005"), [""])
sketch7.MapMode = "FlatFace"
sketch7.AttachmentOffset = App.Placement(Vector(0, 0, -0.875 * 25.4), App.Rotation())
sketch7.addGeometry(Part.ArcOfCircle(Part.Circle(Vector(13, 1168, 0), Vector(0, 0, 1), 51), math.radians(90), math.radians(180)), False)
sketch7.addGeometry(Part.LineSegment(Vector(-38, 1168, 0), Vector(-38, 1219, 0)), False)
sketch7.addGeometry(Part.LineSegment(Vector(-38, 1219, 0), Vector(13, 1219, 0)), False)
sketch7.addConstraint(Sketcher.Constraint("Tangent", 0, 2, 1, 1))
sketch7.addConstraint(Sketcher.Constraint("Coincident", 1, 2, 2, 1))
sketch7.addConstraint(Sketcher.Constraint("Tangent", 2, 2, 0, 1))
sketch7.addConstraint(Sketcher.Constraint("Vertical", 1))
sketch7.addConstraint(Sketcher.Constraint("Horizontal", 2))
sketch7.addConstraint(Sketcher.Constraint("Radius", 0, Q("2 in")))
sketch7.addConstraint(Sketcher.Constraint("DistanceY", -1, 1, 0, 3, Q("46 in")))
sketch7.addConstraint(Sketcher.Constraint("DistanceX", -1, 1, 0, 3, Q("0.5 in")))
pad7 = body6.newObject("PartDesign::Pad", "Pad006")
pad7.Profile = sketch7
pad7.Length = Q("0.2 in")
pad7.Reversed = True
body7 = doc.addObject("PartDesign::Body", "Body006")

sketch8 = body7.newObject("Sketcher::SketchObject", "Sketch007")
sketch8.AttachmentSupport = (doc.getObject("XY_Plane006"), [""])
sketch8.MapMode = "FlatFace"
sketch8.AttachmentOffset = App.Placement(Vector(0, 0, 48 * 25.4), App.Rotation())
sketch8.addGeometry(Part.ArcOfCircle(Part.Circle(Vector(-16, 13, 0), Vector(0, 0, 1), 13), math.radians(-90), math.radians(0)), False)
sketch8.addGeometry(Part.ArcOfCircle(Part.Circle(Vector(-16, 13, 0), Vector(0, 0, 1), 13), math.radians(0), math.radians(90)), False)
sketch8.addGeometry(Part.ArcOfCircle(Part.Circle(Vector(-16, 13, 0), Vector(0, 0, 1), 13), math.radians(90), math.radians(120)), False)
sketch8.addGeometry(Part.ArcOfCircle(Part.Circle(Vector(-16, 13, 0), Vector(0, 0, 1), 13), math.radians(120), math.radians(240)), False)
sketch8.addGeometry(Part.ArcOfCircle(Part.Circle(Vector(-16, 13, 0), Vector(0, 0, 1), 13), math.radians(-120), math.radians(-90)), False)
sketch8.addConstraint(Sketcher.Constraint("Tangent", 0, 2, 1, 1))
sketch8.addConstraint(Sketcher.Constraint("Tangent", 1, 2, 2, 1))
sketch8.addConstraint(Sketcher.Constraint("Tangent", 2, 2, 3, 1))
sketch8.addConstraint(Sketcher.Constraint("Tangent", 3, 2, 4, 1))
sketch8.addConstraint(Sketcher.Constraint("Tangent", 4, 2, 0, 1))
sketch8.addConstraint(Sketcher.Constraint("Coincident", 2, 3, 0, 3))
sketch8.addConstraint(Sketcher.Constraint("PointOnObject", 4, 2, -1))
sketch8.addConstraint(Sketcher.Constraint("Horizontal", 4, 3, 0, 2))
sketch8.addConstraint(Sketcher.Constraint("Vertical", 4, 3, 1, 2))
sketch8.addConstraint(Sketcher.Constraint("Vertical", 2, 2, 3, 2))
sketch8.addConstraint(Sketcher.Constraint("Vertical", 1, 2, 4, 2))
sketch8.addConstraint(Sketcher.Constraint("Radius", 0, Q("0.5 in")))
sketch8.addConstraint(Sketcher.Constraint("DistanceX", 2, 2, 1, 2, Q("0.25 in")))
sketch8.addConstraint(Sketcher.Constraint("DistanceX", 0, 3, -1, 1, Q("0.625 in")))
pad8 = body7.newObject("PartDesign::Pad", "Pad007")
pad8.Profile = sketch8
pad8.Length = Q("1 in")

doc.recompute()
